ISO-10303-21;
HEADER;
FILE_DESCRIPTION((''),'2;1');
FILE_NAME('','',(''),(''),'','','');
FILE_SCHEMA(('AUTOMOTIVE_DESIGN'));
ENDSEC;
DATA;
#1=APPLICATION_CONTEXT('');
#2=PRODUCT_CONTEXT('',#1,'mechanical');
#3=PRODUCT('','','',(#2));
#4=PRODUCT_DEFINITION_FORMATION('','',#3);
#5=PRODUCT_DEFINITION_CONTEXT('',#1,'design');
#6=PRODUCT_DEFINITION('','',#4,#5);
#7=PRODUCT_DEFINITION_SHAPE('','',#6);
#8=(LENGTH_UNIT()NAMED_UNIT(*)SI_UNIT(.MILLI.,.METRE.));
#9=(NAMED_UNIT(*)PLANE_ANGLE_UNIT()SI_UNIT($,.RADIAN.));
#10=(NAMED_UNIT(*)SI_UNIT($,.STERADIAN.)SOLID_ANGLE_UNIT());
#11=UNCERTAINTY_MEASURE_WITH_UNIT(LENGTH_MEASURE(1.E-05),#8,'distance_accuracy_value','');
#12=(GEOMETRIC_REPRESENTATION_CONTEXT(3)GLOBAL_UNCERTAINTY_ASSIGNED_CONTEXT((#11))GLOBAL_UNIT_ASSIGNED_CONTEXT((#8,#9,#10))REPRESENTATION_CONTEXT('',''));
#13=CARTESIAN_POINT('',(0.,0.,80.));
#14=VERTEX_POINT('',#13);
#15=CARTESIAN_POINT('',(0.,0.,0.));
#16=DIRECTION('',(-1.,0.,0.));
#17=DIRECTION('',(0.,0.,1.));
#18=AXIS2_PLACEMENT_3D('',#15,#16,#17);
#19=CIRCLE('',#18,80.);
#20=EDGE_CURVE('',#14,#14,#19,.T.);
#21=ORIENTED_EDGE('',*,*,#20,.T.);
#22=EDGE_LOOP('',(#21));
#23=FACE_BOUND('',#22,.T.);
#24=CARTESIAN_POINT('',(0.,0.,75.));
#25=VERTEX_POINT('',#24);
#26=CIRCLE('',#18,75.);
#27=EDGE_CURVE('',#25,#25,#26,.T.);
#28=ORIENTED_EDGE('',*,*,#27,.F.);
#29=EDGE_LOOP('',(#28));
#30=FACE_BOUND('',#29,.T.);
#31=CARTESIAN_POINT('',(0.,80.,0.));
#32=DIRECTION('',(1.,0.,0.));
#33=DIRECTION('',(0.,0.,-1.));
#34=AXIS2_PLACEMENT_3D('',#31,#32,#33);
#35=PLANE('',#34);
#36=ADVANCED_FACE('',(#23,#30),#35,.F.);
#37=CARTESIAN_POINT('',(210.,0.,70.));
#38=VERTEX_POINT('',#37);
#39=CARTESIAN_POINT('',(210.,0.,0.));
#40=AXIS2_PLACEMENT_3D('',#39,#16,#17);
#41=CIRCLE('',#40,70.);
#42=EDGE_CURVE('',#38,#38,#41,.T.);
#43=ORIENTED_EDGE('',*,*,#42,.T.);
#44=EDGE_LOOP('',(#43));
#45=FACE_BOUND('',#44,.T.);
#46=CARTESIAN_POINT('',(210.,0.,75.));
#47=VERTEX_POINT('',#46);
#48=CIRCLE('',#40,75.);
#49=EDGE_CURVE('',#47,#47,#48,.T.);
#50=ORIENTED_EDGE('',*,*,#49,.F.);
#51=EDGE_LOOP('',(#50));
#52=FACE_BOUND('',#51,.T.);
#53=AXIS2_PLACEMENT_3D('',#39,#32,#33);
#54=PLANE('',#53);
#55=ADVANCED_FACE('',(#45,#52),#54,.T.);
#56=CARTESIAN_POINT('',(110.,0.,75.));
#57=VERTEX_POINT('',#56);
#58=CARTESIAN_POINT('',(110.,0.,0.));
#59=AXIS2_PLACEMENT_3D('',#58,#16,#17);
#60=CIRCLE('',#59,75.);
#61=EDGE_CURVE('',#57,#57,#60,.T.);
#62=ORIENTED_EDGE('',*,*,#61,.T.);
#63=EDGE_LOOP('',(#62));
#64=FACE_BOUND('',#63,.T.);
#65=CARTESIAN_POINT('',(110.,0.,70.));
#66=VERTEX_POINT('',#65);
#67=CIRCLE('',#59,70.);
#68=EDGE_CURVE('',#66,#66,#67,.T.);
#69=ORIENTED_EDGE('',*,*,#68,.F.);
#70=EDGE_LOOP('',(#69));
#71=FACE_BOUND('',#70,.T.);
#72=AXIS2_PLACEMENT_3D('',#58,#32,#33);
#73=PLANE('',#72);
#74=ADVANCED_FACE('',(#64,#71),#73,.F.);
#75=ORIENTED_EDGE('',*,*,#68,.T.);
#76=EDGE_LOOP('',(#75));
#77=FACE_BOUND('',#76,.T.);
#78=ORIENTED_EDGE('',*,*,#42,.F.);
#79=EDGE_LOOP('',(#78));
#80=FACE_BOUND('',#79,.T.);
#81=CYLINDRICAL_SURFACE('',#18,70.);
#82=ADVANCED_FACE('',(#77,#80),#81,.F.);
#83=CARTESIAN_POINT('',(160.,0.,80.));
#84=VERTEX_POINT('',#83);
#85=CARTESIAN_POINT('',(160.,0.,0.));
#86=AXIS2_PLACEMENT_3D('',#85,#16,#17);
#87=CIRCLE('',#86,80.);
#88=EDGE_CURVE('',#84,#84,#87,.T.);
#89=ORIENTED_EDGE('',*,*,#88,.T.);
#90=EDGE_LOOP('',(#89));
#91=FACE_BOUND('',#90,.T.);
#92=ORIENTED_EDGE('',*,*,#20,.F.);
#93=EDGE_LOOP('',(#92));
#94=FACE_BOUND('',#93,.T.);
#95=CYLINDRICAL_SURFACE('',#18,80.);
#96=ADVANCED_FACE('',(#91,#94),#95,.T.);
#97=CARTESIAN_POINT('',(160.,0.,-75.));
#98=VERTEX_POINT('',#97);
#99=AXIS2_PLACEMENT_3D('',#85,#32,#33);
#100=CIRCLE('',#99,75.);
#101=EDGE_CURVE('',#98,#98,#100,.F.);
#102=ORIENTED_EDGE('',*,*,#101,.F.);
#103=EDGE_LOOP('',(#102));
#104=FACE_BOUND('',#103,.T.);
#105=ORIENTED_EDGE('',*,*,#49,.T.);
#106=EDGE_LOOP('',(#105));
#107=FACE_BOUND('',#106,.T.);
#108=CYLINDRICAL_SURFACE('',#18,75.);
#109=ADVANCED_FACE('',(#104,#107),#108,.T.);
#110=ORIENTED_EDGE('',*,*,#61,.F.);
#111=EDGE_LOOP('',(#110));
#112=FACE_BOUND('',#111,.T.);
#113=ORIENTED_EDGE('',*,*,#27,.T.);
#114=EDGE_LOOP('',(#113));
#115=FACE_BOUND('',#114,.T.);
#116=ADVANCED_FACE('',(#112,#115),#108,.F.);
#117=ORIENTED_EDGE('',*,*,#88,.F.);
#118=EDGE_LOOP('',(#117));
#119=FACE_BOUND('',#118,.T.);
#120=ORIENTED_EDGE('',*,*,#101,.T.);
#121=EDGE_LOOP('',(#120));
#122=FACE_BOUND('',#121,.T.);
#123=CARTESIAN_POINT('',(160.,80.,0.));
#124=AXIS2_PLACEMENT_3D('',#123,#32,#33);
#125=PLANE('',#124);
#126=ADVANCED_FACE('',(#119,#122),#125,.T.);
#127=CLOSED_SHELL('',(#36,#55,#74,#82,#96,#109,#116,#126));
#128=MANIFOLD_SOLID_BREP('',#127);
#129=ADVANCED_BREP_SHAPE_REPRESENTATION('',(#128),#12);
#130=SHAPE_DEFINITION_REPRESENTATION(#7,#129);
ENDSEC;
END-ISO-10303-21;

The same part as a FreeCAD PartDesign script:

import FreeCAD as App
import Part
import Sketcher
from FreeCAD import Vector
Q = App.Units.Quantity


def add_polygon(sketch, points):
    """Adds a closed chain of lines whose ends are joined by coincident constraints."""
    first, n = sketch.GeometryCount, len(points)
    for a, b in zip(points, points[1:] + points[:1]):
        sketch.addGeometry(Part.LineSegment(App.Vector(*a, 0), App.Vector(*b, 0)), False)
    for i in range(n):
        sketch.addConstraint(Sketcher.Constraint("Coincident", first + i, 2, first + (i + 1) % n, 1))

doc = App.newDocument("Part")
body = doc.addObject("PartDesign::Body", "Body")

# Sketch on XY plane
sketch1 = body.newObject("Sketcher::SketchObject", "Sketch")
sketch1.AttachmentSupport = (doc.getObject("XY_Plane"), [""])
sketch1.MapMode = "FlatFace"
add_polygon(sketch1, [(0, 80), (0, 75), (110, 75), (110, 70), (210, 70), (210, 75), (160, 75), (160, 80)])  # lines 0-7
sketch1.addConstraint(Sketcher.Constraint("Vertical", 0))
sketch1.addConstraint(Sketcher.Constraint("Horizontal", 1))
sketch1.addConstraint(Sketcher.Constraint("Vertical", 2))
sketch1.addConstraint(Sketcher.Constraint("Horizontal", 3))
sketch1.addConstraint(Sketcher.Constraint("Vertical", 4))
sketch1.addConstraint(Sketcher.Constraint("Horizontal", 5))
sketch1.addConstraint(Sketcher.Constraint("Vertical", 6))
sketch1.addConstraint(Sketcher.Constraint("Horizontal", 7))
sketch1.addConstraint(Sketcher.Constraint("PointOnObject", 0, 2, -2))
sketch1.addConstraint(Sketcher.Constraint("Horizontal", 1, 2, 4, 2))
sketch1.addConstraint(Sketcher.Constraint("Equal", 0, 2))
sketch1.addConstraint(Sketcher.Constraint("DistanceX", 1, 1, 1, 2, Q("110 mm")))
sketch1.addConstraint(Sketcher.Constraint("DistanceX", 3, 1, 3, 2, Q("100 mm")))
sketch1.addConstraint(Sketcher.Constraint("DistanceX", 5, 2, 5, 1, Q("50 mm")))
sketch1.addConstraint(Sketcher.Constraint("DistanceY", 0, 2, 0, 1, Q("5 mm")))
sketch1.addConstraint(Sketcher.Constraint("DistanceY", -1, 1, 0, 2, Q("75 mm")))
revolution = body.newObject("PartDesign::Revolution", "Revolution")
revolution.Profile = sketch1
revolution.ReferenceAxis = (sketch1, ["H_Axis"])
revolution.Angle = 360

doc.recompute()
